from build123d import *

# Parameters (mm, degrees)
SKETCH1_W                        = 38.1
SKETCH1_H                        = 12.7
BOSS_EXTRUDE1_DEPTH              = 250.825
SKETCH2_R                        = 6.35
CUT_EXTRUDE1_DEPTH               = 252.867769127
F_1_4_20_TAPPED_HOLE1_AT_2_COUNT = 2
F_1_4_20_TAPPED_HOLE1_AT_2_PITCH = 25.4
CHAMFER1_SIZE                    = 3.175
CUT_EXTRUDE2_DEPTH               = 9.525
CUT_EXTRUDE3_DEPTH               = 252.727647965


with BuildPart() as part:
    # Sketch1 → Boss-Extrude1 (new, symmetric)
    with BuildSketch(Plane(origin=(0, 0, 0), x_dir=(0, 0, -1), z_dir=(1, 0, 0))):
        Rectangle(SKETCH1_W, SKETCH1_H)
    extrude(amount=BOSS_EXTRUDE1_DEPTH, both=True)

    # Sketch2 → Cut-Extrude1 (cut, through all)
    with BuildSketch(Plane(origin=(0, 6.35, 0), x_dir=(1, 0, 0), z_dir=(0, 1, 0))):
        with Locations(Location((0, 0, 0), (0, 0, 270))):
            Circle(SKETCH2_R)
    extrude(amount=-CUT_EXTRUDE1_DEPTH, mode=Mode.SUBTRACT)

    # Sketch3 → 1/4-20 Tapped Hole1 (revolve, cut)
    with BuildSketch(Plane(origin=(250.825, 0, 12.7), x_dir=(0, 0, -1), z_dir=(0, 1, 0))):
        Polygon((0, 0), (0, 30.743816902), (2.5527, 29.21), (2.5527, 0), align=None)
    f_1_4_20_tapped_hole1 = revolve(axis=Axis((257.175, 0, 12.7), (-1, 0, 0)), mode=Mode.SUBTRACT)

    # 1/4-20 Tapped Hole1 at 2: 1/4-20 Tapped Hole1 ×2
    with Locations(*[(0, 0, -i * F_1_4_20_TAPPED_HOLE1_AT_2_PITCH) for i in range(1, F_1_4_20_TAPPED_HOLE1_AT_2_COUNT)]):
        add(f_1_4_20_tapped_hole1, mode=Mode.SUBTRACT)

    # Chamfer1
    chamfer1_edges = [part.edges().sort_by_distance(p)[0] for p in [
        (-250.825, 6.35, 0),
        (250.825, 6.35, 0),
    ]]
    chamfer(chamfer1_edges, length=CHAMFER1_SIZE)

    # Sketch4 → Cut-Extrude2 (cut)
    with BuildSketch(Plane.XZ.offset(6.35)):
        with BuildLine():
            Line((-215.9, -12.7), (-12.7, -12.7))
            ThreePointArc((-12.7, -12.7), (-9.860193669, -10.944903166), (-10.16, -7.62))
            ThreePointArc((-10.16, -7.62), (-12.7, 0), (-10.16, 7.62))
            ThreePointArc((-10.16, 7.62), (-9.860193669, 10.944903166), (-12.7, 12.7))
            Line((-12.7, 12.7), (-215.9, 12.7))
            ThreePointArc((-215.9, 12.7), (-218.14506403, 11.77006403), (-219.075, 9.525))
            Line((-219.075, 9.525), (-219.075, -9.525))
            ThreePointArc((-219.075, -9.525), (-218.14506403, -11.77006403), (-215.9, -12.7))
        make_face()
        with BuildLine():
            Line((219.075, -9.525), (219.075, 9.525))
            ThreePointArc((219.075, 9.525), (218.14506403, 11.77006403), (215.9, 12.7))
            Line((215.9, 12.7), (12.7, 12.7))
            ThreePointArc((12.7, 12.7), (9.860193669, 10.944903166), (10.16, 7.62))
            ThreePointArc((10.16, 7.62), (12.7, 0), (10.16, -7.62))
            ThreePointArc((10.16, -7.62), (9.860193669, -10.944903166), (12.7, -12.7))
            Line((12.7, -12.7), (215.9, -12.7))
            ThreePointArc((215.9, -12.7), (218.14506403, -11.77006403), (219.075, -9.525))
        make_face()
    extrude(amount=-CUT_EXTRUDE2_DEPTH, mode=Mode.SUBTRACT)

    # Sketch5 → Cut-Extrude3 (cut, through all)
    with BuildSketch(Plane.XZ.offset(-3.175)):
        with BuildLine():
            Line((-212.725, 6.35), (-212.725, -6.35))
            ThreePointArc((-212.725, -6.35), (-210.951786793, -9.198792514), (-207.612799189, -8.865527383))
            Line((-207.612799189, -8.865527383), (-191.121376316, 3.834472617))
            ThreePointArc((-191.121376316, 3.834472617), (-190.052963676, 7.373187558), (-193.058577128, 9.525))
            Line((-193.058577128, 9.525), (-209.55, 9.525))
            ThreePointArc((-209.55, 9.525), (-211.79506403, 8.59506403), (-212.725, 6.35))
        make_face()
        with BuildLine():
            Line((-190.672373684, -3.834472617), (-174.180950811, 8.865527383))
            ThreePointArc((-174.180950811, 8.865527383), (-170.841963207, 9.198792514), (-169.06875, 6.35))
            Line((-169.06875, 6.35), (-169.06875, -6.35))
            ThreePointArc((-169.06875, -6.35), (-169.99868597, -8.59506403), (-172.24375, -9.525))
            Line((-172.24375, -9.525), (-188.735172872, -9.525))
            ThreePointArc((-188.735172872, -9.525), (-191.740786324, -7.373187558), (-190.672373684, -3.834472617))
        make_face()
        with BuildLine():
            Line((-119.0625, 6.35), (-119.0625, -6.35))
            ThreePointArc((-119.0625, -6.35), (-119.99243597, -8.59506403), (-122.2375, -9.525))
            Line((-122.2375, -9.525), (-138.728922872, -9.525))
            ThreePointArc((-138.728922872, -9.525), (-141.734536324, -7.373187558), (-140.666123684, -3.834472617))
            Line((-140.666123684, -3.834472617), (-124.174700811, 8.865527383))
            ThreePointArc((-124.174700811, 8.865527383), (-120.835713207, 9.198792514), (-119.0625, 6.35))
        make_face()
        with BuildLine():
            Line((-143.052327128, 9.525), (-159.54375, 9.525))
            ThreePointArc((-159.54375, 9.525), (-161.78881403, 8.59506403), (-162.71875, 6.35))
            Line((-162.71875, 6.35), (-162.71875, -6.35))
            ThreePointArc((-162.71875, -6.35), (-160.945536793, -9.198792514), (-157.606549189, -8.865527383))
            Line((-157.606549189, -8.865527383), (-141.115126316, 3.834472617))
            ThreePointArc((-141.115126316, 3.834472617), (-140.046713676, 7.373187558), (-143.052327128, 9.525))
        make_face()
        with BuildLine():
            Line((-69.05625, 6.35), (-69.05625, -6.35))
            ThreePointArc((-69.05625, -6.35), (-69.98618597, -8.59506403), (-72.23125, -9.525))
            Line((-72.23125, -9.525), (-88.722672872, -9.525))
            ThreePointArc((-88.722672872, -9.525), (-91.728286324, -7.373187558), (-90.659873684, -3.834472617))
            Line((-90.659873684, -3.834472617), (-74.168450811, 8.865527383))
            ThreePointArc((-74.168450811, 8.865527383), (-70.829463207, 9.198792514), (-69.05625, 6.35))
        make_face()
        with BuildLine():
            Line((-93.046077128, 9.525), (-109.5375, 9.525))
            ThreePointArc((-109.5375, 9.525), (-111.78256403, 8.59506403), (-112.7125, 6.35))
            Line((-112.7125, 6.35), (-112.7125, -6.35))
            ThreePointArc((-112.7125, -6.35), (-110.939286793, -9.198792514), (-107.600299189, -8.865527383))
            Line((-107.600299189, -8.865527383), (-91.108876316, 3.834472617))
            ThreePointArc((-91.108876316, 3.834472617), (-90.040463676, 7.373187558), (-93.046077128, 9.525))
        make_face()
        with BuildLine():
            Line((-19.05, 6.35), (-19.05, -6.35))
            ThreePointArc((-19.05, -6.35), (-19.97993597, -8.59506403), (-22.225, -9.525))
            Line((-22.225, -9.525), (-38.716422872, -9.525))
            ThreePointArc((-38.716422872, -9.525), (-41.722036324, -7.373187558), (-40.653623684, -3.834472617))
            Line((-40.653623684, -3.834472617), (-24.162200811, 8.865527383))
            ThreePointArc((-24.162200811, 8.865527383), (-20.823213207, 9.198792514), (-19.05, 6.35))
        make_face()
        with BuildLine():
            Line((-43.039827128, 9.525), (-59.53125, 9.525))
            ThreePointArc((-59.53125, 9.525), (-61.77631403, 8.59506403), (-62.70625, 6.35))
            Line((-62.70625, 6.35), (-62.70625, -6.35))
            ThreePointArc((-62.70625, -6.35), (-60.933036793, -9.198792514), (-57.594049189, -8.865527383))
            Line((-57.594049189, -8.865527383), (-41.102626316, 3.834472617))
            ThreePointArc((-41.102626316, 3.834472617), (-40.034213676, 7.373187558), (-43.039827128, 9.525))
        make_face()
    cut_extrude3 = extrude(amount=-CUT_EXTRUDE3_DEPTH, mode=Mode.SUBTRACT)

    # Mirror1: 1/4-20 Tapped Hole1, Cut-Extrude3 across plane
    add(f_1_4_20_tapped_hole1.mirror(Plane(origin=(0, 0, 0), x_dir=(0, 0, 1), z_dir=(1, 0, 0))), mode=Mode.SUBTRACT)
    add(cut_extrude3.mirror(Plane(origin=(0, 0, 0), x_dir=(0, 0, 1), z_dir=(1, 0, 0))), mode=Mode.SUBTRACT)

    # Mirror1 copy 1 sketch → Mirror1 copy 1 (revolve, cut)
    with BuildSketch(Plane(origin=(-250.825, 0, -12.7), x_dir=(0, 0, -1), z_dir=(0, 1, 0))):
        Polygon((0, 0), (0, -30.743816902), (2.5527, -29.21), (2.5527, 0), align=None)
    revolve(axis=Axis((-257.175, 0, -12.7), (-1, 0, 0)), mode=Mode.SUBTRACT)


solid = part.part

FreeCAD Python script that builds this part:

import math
import FreeCAD as App
import Part
import Sketcher
Q = App.Units.Quantity


def edges_at(feature, points):
    """Names of the edges that pass closest to the given points."""
    edges = feature.Shape.Edges
    near = lambda p: min(range(len(edges)), key=lambda i: edges[i].distToShape(Part.Vertex(*p))[0])
    return sorted({f"Edge{near(p) + 1}" for p in points})

doc = App.newDocument("Part")
body = doc.addObject("PartDesign::Body", "Body")

# Sketch on YZ plane
sketch1 = doc.addObject("Sketcher::SketchObject", "Sketch")
body.addObject(sketch1)
sketch1.AttachmentSupport = (doc.YZ_Plane, [""])
sketch1.MapMode = "FlatFace"
sketch1.addGeometry([
    Part.LineSegment(App.Vector(6.35, 19.05, 0), App.Vector(-6.35, 19.05, 0)),
    Part.LineSegment(App.Vector(-6.35, 19.05, 0), App.Vector(-6.35, -19.05, 0)),
    Part.LineSegment(App.Vector(-6.35, -19.05, 0), App.Vector(6.35, -19.05, 0)),
    Part.LineSegment(App.Vector(6.35, -19.05, 0), App.Vector(6.35, 19.05, 0)),
], False)
sketch1.addConstraint([
    Sketcher.Constraint("Coincident", 0, 2, 1, 1),
    Sketcher.Constraint("Coincident", 1, 2, 2, 1),
    Sketcher.Constraint("Coincident", 2, 2, 3, 1),
    Sketcher.Constraint("Coincident", 3, 2, 0, 1),
    Sketcher.Constraint("Horizontal", 0),
    Sketcher.Constraint("Vertical", 1),
    Sketcher.Constraint("Horizontal", 2),
    Sketcher.Constraint("Vertical", 3),
    Sketcher.Constraint("Symmetric", 0, 2, 2, 2, -1, 1),
    Sketcher.Constraint("DistanceX", 0, 2, 0, 1, Q("0.5 in")),
    Sketcher.Constraint("DistanceY", 1, 2, 1, 1, Q("1.5 in")),
])
pad1 = doc.addObject("PartDesign::Pad", "Pad")
body.addObject(pad1)
pad1.Profile = sketch1
pad1.Length = Q("19.75 in")
pad1.Midplane = True

# Sketch on XZ plane
sketch2 = doc.addObject("Sketcher::SketchObject", "Sketch001")
body.addObject(sketch2)
sketch2.AttachmentSupport = (doc.XZ_Plane, [""])
sketch2.MapMode = "FlatFace"
sketch2.AttachmentOffset = App.Placement(App.Vector(0, 0, -0.25 * 25.4), App.Rotation())
sketch2.addGeometry(Part.Circle(App.Vector(0, 0, 0), App.Vector(0, 0, 1), 6.35), False)
sketch2.addConstraint([
    Sketcher.Constraint("Coincident", 0, 3, -1, 1),
    Sketcher.Constraint("Diameter", 0, Q("0.5 in")),
])
pocket1 = doc.addObject("PartDesign::Pocket", "Pocket")
body.addObject(pocket1)
pocket1.Profile = sketch2
pocket1.Type = "ThroughAll"
pocket1.Reversed = True

# Sketch on XZ plane
sketch3 = doc.addObject("Sketcher::SketchObject", "Sketch002")
body.addObject(sketch3)
sketch3.AttachmentSupport = (doc.XZ_Plane, [""])
sketch3.MapMode = "FlatFace"
sketch3.addGeometry([
    Part.LineSegment(App.Vector(220.081183, 12.7, 0), App.Vector(250.825, 12.7, 0)),
    Part.LineSegment(App.Vector(250.825, 12.7, 0), App.Vector(250.825, 10.1473, 0)),
    Part.LineSegment(App.Vector(250.825, 10.1473, 0), App.Vector(221.615, 10.1473, 0)),
    Part.LineSegment(App.Vector(221.615, 10.1473, 0), App.Vector(220.081183, 12.7, 0)),
], False)
sketch3.addGeometry(Part.LineSegment(App.Vector(250.825, 12.7, 0), App.Vector(220.081183, 12.7, 0)), True)  # axis
sketch3.addConstraint([
    Sketcher.Constraint("Coincident", 0, 2, 1, 1),
    Sketcher.Constraint("Coincident", 1, 2, 2, 1),
    Sketcher.Constraint("Coincident", 2, 2, 3, 1),
    Sketcher.Constraint("Coincident", 3, 2, 0, 1),
    Sketcher.Constraint("Horizontal", 0),
    Sketcher.Constraint("Vertical", 1),
    Sketcher.Constraint("Horizontal", 2),
    Sketcher.Constraint("Horizontal", 4),
    Sketcher.Constraint("Coincident", 4, 1, 0, 2),
    Sketcher.Constraint("Equal", 0, 4),
    Sketcher.Constraint("Angle", 3, Q("121 deg")),
    Sketcher.Constraint("DistanceX", 2, 2, 2, 1, Q("1.15 in")),
    Sketcher.Constraint("DistanceY", -1, 1, 0, 2, Q("0.5 in")),
    Sketcher.Constraint("DistanceY", 1, 2, 1, 1, Q("0.1005 in")),
    Sketcher.Constraint("DistanceX", -1, 1, 0, 2, Q("9.875 in")),
])
groove = doc.addObject("PartDesign::Groove", "Groove")
body.addObject(groove)
groove.Profile = sketch3
groove.ReferenceAxis = (sketch3, ["Axis0"])
groove.Angle = 360
doc.recompute()

linearpattern = doc.addObject("PartDesign::LinearPattern", "LinearPattern")
body.addObject(linearpattern)
linearpattern.Originals = [groove]
linearpattern.Direction = (doc.Z_Axis, [""])
linearpattern.Mode = "offset"
linearpattern.Offset = Q("1 in")
linearpattern.Occurrences = 2
linearpattern.Reversed = True
body.Tip = linearpattern
doc.recompute()

chamfer = doc.addObject("PartDesign::Chamfer", "Chamfer")
body.addObject(chamfer)
chamfer.Base = (linearpattern, edges_at(linearpattern, [(-250.825, 6.35, 0), (250.825, 6.35, 0)]))
chamfer.Size = Q("0.125 in")

# Sketch on XZ plane
sketch4 = doc.addObject("Sketcher::SketchObject", "Sketch003")
body.addObject(sketch4)
sketch4.AttachmentSupport = (doc.XZ_Plane, [""])
sketch4.MapMode = "FlatFace"
sketch4.AttachmentOffset = App.Placement(App.Vector(0, 0, 0.25 * 25.4), App.Rotation())
sketch4.addGeometry([
    Part.LineSegment(App.Vector(-215.9, -12.7, 0), App.Vector(-12.7, -12.7, 0)),  # 0
    Part.ArcOfCircle(Part.Circle(App.Vector(-12.7, -9.525, 0), App.Vector(0, 0, 1), 3.175), math.radians(-90), math.radians(36.869898)),  # 1
    Part.ArcOfCircle(Part.Circle(App.Vector(0, 0, 0), App.Vector(0, 0, 1), 12.7), math.radians(143.130102), math.radians(216.869898)),  # 2
    Part.ArcOfCircle(Part.Circle(App.Vector(-12.7, 9.525, 0), App.Vector(0, 0, 1), 3.175), math.radians(-36.869898), math.radians(90)),  # 3
    Part.LineSegment(App.Vector(-12.7, 12.7, 0), App.Vector(-215.9, 12.7, 0)),  # 4
    Part.ArcOfCircle(Part.Circle(App.Vector(-215.9, 9.525, 0), App.Vector(0, 0, 1), 3.175), math.radians(90), math.radians(180)),  # 5
    Part.LineSegment(App.Vector(-219.075, 9.525, 0), App.Vector(-219.075, -9.525, 0)),  # 6
    Part.ArcOfCircle(Part.Circle(App.Vector(-215.9, -9.525, 0), App.Vector(0, 0, 1), 3.175), math.radians(-180), math.radians(-90)),  # 7
    Part.LineSegment(App.Vector(219.075, -9.525, 0), App.Vector(219.075, 9.525, 0)),  # 8
    Part.ArcOfCircle(Part.Circle(App.Vector(215.9, 9.525, 0), App.Vector(0, 0, 1), 3.175), math.radians(0), math.radians(90)),  # 9
    Part.LineSegment(App.Vector(215.9, 12.7, 0), App.Vector(12.7, 12.7, 0)),  # 10
    Part.ArcOfCircle(Part.Circle(App.Vector(12.7, 9.525, 0), App.Vector(0, 0, 1), 3.175), math.radians(90), math.radians(216.869898)),  # 11
    Part.ArcOfCircle(Part.Circle(App.Vector(0, 0, 0), App.Vector(0, 0, 1), 12.7), math.radians(-36.869898), math.radians(36.869898)),  # 12
    Part.ArcOfCircle(Part.Circle(App.Vector(12.7, -9.525, 0), App.Vector(0, 0, 1), 3.175), math.radians(143.130102), math.radians(270)),  # 13
    Part.LineSegment(App.Vector(12.7, -12.7, 0), App.Vector(215.9, -12.7, 0)),  # 14
    Part.ArcOfCircle(Part.Circle(App.Vector(215.9, -9.525, 0), App.Vector(0, 0, 1), 3.175), math.radians(-90), math.radians(0)),  # 15
], False)
sketch4.addConstraint([
    Sketcher.Constraint("Tangent", 0, 2, 1, 1),
    Sketcher.Constraint("Tangent", 1, 2, 2, 2),
    Sketcher.Constraint("Tangent", 2, 1, 3, 1),
    Sketcher.Constraint("Tangent", 3, 2, 4, 1),
    Sketcher.Constraint("Tangent", 4, 2, 5, 1),
    Sketcher.Constraint("Tangent", 5, 2, 6, 1),
    Sketcher.Constraint("Tangent", 6, 2, 7, 1),
    Sketcher.Constraint("Tangent", 7, 2, 0, 1),
    Sketcher.Constraint("Tangent", 8, 2, 9, 1),
    Sketcher.Constraint("Tangent", 9, 2, 10, 1),
    Sketcher.Constraint("Tangent", 10, 2, 11, 1),
    Sketcher.Constraint("Tangent", 11, 2, 12, 2),
    Sketcher.Constraint("Tangent", 12, 1, 13, 1),
    Sketcher.Constraint("Tangent", 13, 2, 14, 1),
    Sketcher.Constraint("Tangent", 14, 2, 15, 1),
    Sketcher.Constraint("Tangent", 15, 2, 8, 1),
    Sketcher.Constraint("Horizontal", 0),
    Sketcher.Constraint("Horizontal", 4),
    Sketcher.Constraint("Vertical", 6),
    Sketcher.Constraint("Vertical", 8),
    Sketcher.Constraint("Horizontal", 10),
    Sketcher.Constraint("Horizontal", 14),
    Sketcher.Constraint("Coincident", 2, 3, -1, 1),
    Sketcher.Constraint("Coincident", 12, 3, -1, 1),
    Sketcher.Constraint("Equal", 1, 3),
    Sketcher.Constraint("Equal", 3, 5),
    Sketcher.Constraint("Equal", 5, 7),
    Sketcher.Constraint("Equal", 7, 9),
    Sketcher.Constraint("Equal", 9, 11),
    Sketcher.Constraint("Equal", 2, 12),
    Sketcher.Constraint("Equal", 11, 13),
    Sketcher.Constraint("Equal", 13, 15),
    Sketcher.Constraint("Symmetric", 7, 3, 9, 3, -1, 1),
    Sketcher.Constraint("Horizontal", 5, 3, 9, 3),
    Sketcher.Constraint("Horizontal", 7, 3, 13, 3),
    Sketcher.Constraint("Radius", 2, Q("0.5 in")),
    Sketcher.Constraint("DistanceX", 0, 1, 0, 2, Q("8 in")),
    Sketcher.Constraint("Radius", 1, Q("0.125 in")),
    Sketcher.Constraint("DistanceX", 3, 3, 9, 3, Q("9 in")),
])
pocket2 = doc.addObject("PartDesign::Pocket", "Pocket001")
body.addObject(pocket2)
pocket2.Profile = sketch4
pocket2.Length = Q("0.375 in")

# Sketch on XZ plane
sketch5 = doc.addObject("Sketcher::SketchObject", "Sketch004")
body.addObject(sketch5)
sketch5.AttachmentSupport = (doc.XZ_Plane, [""])
sketch5.MapMode = "FlatFace"
sketch5.AttachmentOffset = App.Placement(App.Vector(0, 0, -0.125 * 25.4), App.Rotation())
sketch5.addGeometry([
    Part.LineSegment(App.Vector(-212.725, 6.35, 0), App.Vector(-212.725, -6.35, 0)),  # 0
    Part.ArcOfCircle(Part.Circle(App.Vector(-209.55, -6.35, 0), App.Vector(0, 0, 1), 3.175), math.radians(180), math.radians(307.59977)),  # 1
    Part.LineSegment(App.Vector(-207.612799, -8.865527, 0), App.Vector(-191.121376, 3.834473, 0)),  # 2
    Part.ArcOfCircle(Part.Circle(App.Vector(-193.058577, 6.35, 0), App.Vector(0, 0, 1), 3.175), math.radians(-52.40023), math.radians(90)),  # 3
    Part.LineSegment(App.Vector(-193.058577, 9.525, 0), App.Vector(-209.55, 9.525, 0)),  # 4
    Part.ArcOfCircle(Part.Circle(App.Vector(-209.55, 6.35, 0), App.Vector(0, 0, 1), 3.175), math.radians(90), math.radians(180)),  # 5
    Part.LineSegment(App.Vector(-174.180951, 8.865527, 0), App.Vector(-190.672374, -3.834473, 0)),  # 6
    Part.ArcOfCircle(Part.Circle(App.Vector(-188.735173, -6.35, 0), App.Vector(0, 0, 1), 3.175), math.radians(127.59977), math.radians(270)),  # 7
    Part.LineSegment(App.Vector(-188.735173, -9.525, 0), App.Vector(-172.24375, -9.525, 0)),  # 8
    Part.ArcOfCircle(Part.Circle(App.Vector(-172.24375, -6.35, 0), App.Vector(0, 0, 1), 3.175), math.radians(-90), math.radians(0)),  # 9
    Part.LineSegment(App.Vector(-169.06875, -6.35, 0), App.Vector(-169.06875, 6.35, 0)),  # 10
    Part.ArcOfCircle(Part.Circle(App.Vector(-172.24375, 6.35, 0), App.Vector(0, 0, 1), 3.175), math.radians(0), math.radians(127.59977)),  # 11
    Part.LineSegment(App.Vector(-119.0625, -6.35, 0), App.Vector(-119.0625, 6.35, 0)),  # 12
    Part.ArcOfCircle(Part.Circle(App.Vector(-122.2375, 6.35, 0), App.Vector(0, 0, 1), 3.175), math.radians(0), math.radians(127.59977)),  # 13
    Part.LineSegment(App.Vector(-124.174701, 8.865527, 0), App.Vector(-140.666124, -3.834473, 0)),  # 14
    Part.ArcOfCircle(Part.Circle(App.Vector(-138.728923, -6.35, 0), App.Vector(0, 0, 1), 3.175), math.radians(127.59977), math.radians(270)),  # 15
    Part.LineSegment(App.Vector(-138.728923, -9.525, 0), App.Vector(-122.2375, -9.525, 0)),  # 16
    Part.ArcOfCircle(Part.Circle(App.Vector(-122.2375, -6.35, 0), App.Vector(0, 0, 1), 3.175), math.radians(-90), math.radians(0)),  # 17
    Part.LineSegment(App.Vector(-143.052327, 9.525, 0), App.Vector(-159.54375, 9.525, 0)),  # 18
    Part.ArcOfCircle(Part.Circle(App.Vector(-159.54375, 6.35, 0), App.Vector(0, 0, 1), 3.175), math.radians(90), math.radians(180)),  # 19
    Part.LineSegment(App.Vector(-162.71875, 6.35, 0), App.Vector(-162.71875, -6.35, 0)),  # 20
    Part.ArcOfCircle(Part.Circle(App.Vector(-159.54375, -6.35, 0), App.Vector(0, 0, 1), 3.175), math.radians(180), math.radians(307.59977)),  # 21
    Part.LineSegment(App.Vector(-157.606549, -8.865527, 0), App.Vector(-141.115126, 3.834473, 0)),  # 22
    Part.ArcOfCircle(Part.Circle(App.Vector(-143.052327, 6.35, 0), App.Vector(0, 0, 1), 3.175), math.radians(-52.40023), math.radians(90)),  # 23
    Part.LineSegment(App.Vector(-69.05625, -6.35, 0), App.Vector(-69.05625, 6.35, 0)),  # 24
    Part.ArcOfCircle(Part.Circle(App.Vector(-72.23125, 6.35, 0), App.Vector(0, 0, 1), 3.175), math.radians(0), math.radians(127.59977)),  # 25
    Part.LineSegment(App.Vector(-74.168451, 8.865527, 0), App.Vector(-90.659874, -3.834473, 0)),  # 26
    Part.ArcOfCircle(Part.Circle(App.Vector(-88.722673, -6.35, 0), App.Vector(0, 0, 1), 3.175), math.radians(127.59977), math.radians(270)),  # 27
    Part.LineSegment(App.Vector(-88.722673, -9.525, 0), App.Vector(-72.23125, -9.525, 0)),  # 28
    Part.ArcOfCircle(Part.Circle(App.Vector(-72.23125, -6.35, 0), App.Vector(0, 0, 1), 3.175), math.radians(-90), math.radians(0)),  # 29
    Part.LineSegment(App.Vector(-93.046077, 9.525, 0), App.Vector(-109.5375, 9.525, 0)),  # 30
    Part.ArcOfCircle(Part.Circle(App.Vector(-109.5375, 6.35, 0), App.Vector(0, 0, 1), 3.175), math.radians(90), math.radians(180)),  # 31
    Part.LineSegment(App.Vector(-112.7125, 6.35, 0), App.Vector(-112.7125, -6.35, 0)),  # 32
    Part.ArcOfCircle(Part.Circle(App.Vector(-109.5375, -6.35, 0), App.Vector(0, 0, 1), 3.175), math.radians(180), math.radians(307.59977)),  # 33
    Part.LineSegment(App.Vector(-107.600299, -8.865527, 0), App.Vector(-91.108876, 3.834473, 0)),  # 34
    Part.ArcOfCircle(Part.Circle(App.Vector(-93.046077, 6.35, 0), App.Vector(0, 0, 1), 3.175), math.radians(-52.40023), math.radians(90)),  # 35
    Part.LineSegment(App.Vector(-19.05, -6.35, 0), App.Vector(-19.05, 6.35, 0)),  # 36
    Part.ArcOfCircle(Part.Circle(App.Vector(-22.225, 6.35, 0), App.Vector(0, 0, 1), 3.175), math.radians(0), math.radians(127.59977)),  # 37
    Part.LineSegment(App.Vector(-24.162201, 8.865527, 0), App.Vector(-40.653624, -3.834473, 0)),  # 38
    Part.ArcOfCircle(Part.Circle(App.Vector(-38.716423, -6.35, 0), App.Vector(0, 0, 1), 3.175), math.radians(127.59977), math.radians(270)),  # 39
    Part.LineSegment(App.Vector(-38.716423, -9.525, 0), App.Vector(-22.225, -9.525, 0)),  # 40
    Part.ArcOfCircle(Part.Circle(App.Vector(-22.225, -6.35, 0), App.Vector(0, 0, 1), 3.175), math.radians(-90), math.radians(0)),  # 41
    Part.LineSegment(App.Vector(-43.039827, 9.525, 0), App.Vector(-59.53125, 9.525, 0)),  # 42
    Part.ArcOfCircle(Part.Circle(App.Vector(-59.53125, 6.35, 0), App.Vector(0, 0, 1), 3.175), math.radians(90), math.radians(180)),  # 43
    Part.LineSegment(App.Vector(-62.70625, 6.35, 0), App.Vector(-62.70625, -6.35, 0)),  # 44
    Part.ArcOfCircle(Part.Circle(App.Vector(-59.53125, -6.35, 0), App.Vector(0, 0, 1), 3.175), math.radians(180), math.radians(307.59977)),  # 45
    Part.LineSegment(App.Vector(-57.594049, -8.865527, 0), App.Vector(-41.102626, 3.834473, 0)),  # 46
    Part.ArcOfCircle(Part.Circle(App.Vector(-43.039827, 6.35, 0), App.Vector(0, 0, 1), 3.175), math.radians(-52.40023), math.radians(90)),  # 47
], False)
sketch5.addConstraint([
    Sketcher.Constraint("Tangent", 0, 2, 1, 1),
    Sketcher.Constraint("Tangent", 1, 2, 2, 1),
    Sketcher.Constraint("Tangent", 2, 2, 3, 1),
    Sketcher.Constraint("Tangent", 3, 2, 4, 1),
    Sketcher.Constraint("Tangent", 4, 2, 5, 1),
    Sketcher.Constraint("Tangent", 5, 2, 0, 1),
    Sketcher.Constraint("Tangent", 6, 2, 7, 1),
    Sketcher.Constraint("Tangent", 7, 2, 8, 1),
    Sketcher.Constraint("Tangent", 8, 2, 9, 1),
    Sketcher.Constraint("Tangent", 9, 2, 10, 1),
    Sketcher.Constraint("Tangent", 10, 2, 11, 1),
    Sketcher.Constraint("Tangent", 11, 2, 6, 1),
    Sketcher.Constraint("Tangent", 12, 2, 13, 1),
    Sketcher.Constraint("Tangent", 13, 2, 14, 1),
    Sketcher.Constraint("Tangent", 14, 2, 15, 1),
    Sketcher.Constraint("Tangent", 15, 2, 16, 1),
    Sketcher.Constraint("Tangent", 16, 2, 17, 1),
    Sketcher.Constraint("Tangent", 17, 2, 12, 1),
    Sketcher.Constraint("Tangent", 18, 2, 19, 1),
    Sketcher.Constraint("Tangent", 19, 2, 20, 1),
    Sketcher.Constraint("Tangent", 20, 2, 21, 1),
    Sketcher.Constraint("Tangent", 21, 2, 22, 1),
    Sketcher.Constraint("Tangent", 22, 2, 23, 1),
    Sketcher.Constraint("Tangent", 23, 2, 18, 1),
    Sketcher.Constraint("Tangent", 24, 2, 25, 1),
    Sketcher.Constraint("Tangent", 25, 2, 26, 1),
    Sketcher.Constraint("Tangent", 26, 2, 27, 1),
    Sketcher.Constraint("Tangent", 27, 2, 28, 1),
    Sketcher.Constraint("Tangent", 28, 2, 29, 1),
    Sketcher.Constraint("Tangent", 29, 2, 24, 1),
    Sketcher.Constraint("Tangent", 30, 2, 31, 1),
    Sketcher.Constraint("Tangent", 31, 2, 32, 1),
    Sketcher.Constraint("Tangent", 32, 2, 33, 1),
    Sketcher.Constraint("Tangent", 33, 2, 34, 1),
    Sketcher.Constraint("Tangent", 34, 2, 35, 1),
    Sketcher.Constraint("Tangent", 35, 2, 30, 1),
    Sketcher.Constraint("Tangent", 36, 2, 37, 1),
    Sketcher.Constraint("Tangent", 37, 2, 38, 1),
    Sketcher.Constraint("Tangent", 38, 2, 39, 1),
    Sketcher.Constraint("Tangent", 39, 2, 40, 1),
    Sketcher.Constraint("Tangent", 40, 2, 41, 1),
    Sketcher.Constraint("Tangent", 41, 2, 36, 1),
    Sketcher.Constraint("Tangent", 42, 2, 43, 1),
    Sketcher.Constraint("Tangent", 43, 2, 44, 1),
    Sketcher.Constraint("Tangent", 44, 2, 45, 1),
    Sketcher.Constraint("Tangent", 45, 2, 46, 1),
    Sketcher.Constraint("Tangent", 46, 2, 47, 1),
    Sketcher.Constraint("Tangent", 47, 2, 42, 1),
    Sketcher.Constraint("Vertical", 0),
    Sketcher.Constraint("Horizontal", 4),
    Sketcher.Constraint("Horizontal", 8),
    Sketcher.Constraint("Vertical", 10),
    Sketcher.Constraint("Vertical", 12),
    Sketcher.Constraint("Horizontal", 16),
    Sketcher.Constraint("Horizontal", 18),
    Sketcher.Constraint("Vertical", 20),
    Sketcher.Constraint("Vertical", 24),
    Sketcher.Constraint("Horizontal", 28),
    Sketcher.Constraint("Horizontal", 30),
    Sketcher.Constraint("Vertical", 32),
    Sketcher.Constraint("Vertical", 36),
    Sketcher.Constraint("Horizontal", 40),
    Sketcher.Constraint("Horizontal", 42),
    Sketcher.Constraint("Vertical", 44),
    Sketcher.Constraint("Equal", 1, 3),
    Sketcher.Constraint("Equal", 3, 5),
    Sketcher.Constraint("Equal", 5, 7),
    Sketcher.Constraint("Equal", 7, 9),
    Sketcher.Constraint("Equal", 9, 11),
    Sketcher.Constraint("Equal", 11, 13),
    Sketcher.Constraint("Equal", 13, 15),
    Sketcher.Constraint("Equal", 15, 17),
    Sketcher.Constraint("Equal", 17, 19),
    Sketcher.Constraint("Equal", 19, 21),
    Sketcher.Constraint("Equal", 21, 23),
    Sketcher.Constraint("Equal", 23, 25),
    Sketcher.Constraint("Equal", 25, 27),
    Sketcher.Constraint("Equal", 27, 29),
    Sketcher.Constraint("Equal", 29, 31),
    Sketcher.Constraint("Equal", 31, 33),
    Sketcher.Constraint("Equal", 33, 35),
    Sketcher.Constraint("Equal", 35, 37),
    Sketcher.Constraint("Equal", 37, 39),
    Sketcher.Constraint("Equal", 39, 41),
    Sketcher.Constraint("Equal", 41, 43),
    Sketcher.Constraint("Equal", 43, 45),
    Sketcher.Constraint("Equal", 45, 47),
    Sketcher.Constraint("Parallel", 2, 6),
    Sketcher.Constraint("Parallel", 6, 14),
    Sketcher.Constraint("Parallel", 14, 22),
    Sketcher.Constraint("Parallel", 22, 26),
    Sketcher.Constraint("Parallel", 26, 34),
    Sketcher.Constraint("Parallel", 34, 38),
    Sketcher.Constraint("Parallel", 38, 46),
    Sketcher.Constraint("Horizontal", 1, 3, 7, 3),
    Sketcher.Constraint("Horizontal", 5, 3, 11, 3),
    Sketcher.Constraint("Horizontal", 11, 3, 13, 3),
    Sketcher.Constraint("Horizontal", 9, 3, 15, 3),
    Sketcher.Constraint("Horizontal", 13, 3, 19, 3),
    Sketcher.Constraint("Horizontal", 17, 3, 21, 3),
    Sketcher.Constraint("Horizontal", 23, 3, 25, 3),
    Sketcher.Constraint("Horizontal", 21, 3, 27, 3),
    Sketcher.Constraint("Horizontal", 25, 3, 31, 3),
    Sketcher.Constraint("Horizontal", 29, 3, 33, 3),
    Sketcher.Constraint("Horizontal", 35, 3, 37, 3),
    Sketcher.Constraint("Horizontal", 33, 3, 39, 3),
    Sketcher.Constraint("Horizontal", 37, 3, 43, 3),
    Sketcher.Constraint("Horizontal", 41, 3, 45, 3),
    Sketcher.Constraint("DistanceY", 0, 2, 0, 1, Q("0.5 in")),
    Sketcher.Constraint("Radius", 1, Q("0.125 in")),
    Sketcher.Constraint("DistanceX", 1, 3, -1, 1, Q("8.25 in")),
    Sketcher.Constraint("DistanceY", 1, 3, -1, 1, Q("0.25 in")),
    Sketcher.Constraint("DistanceX", 36, 2, -1, 1, Q("0.75 in")),
    Sketcher.Constraint("DistanceX", 9, 3, -1, 1, Q("6.78125 in")),
    Sketcher.Constraint("DistanceX", 13, 3, -1, 1, Q("4.8125 in")),
    Sketcher.Constraint("DistanceX", 19, 3, -1, 1, Q("6.28125 in")),
    Sketcher.Constraint("DistanceX", 25, 3, -1, 1, Q("2.84375 in")),
    Sketcher.Constraint("DistanceX", 31, 3, -1, 1, Q("4.3125 in")),
    Sketcher.Constraint("DistanceX", 43, 3, -1, 1, Q("2.34375 in")),
    Sketcher.Constraint("DistanceX", 1, 2, -1, 1, Q("207.612799 mm")),
])
pocket3 = doc.addObject("PartDesign::Pocket", "Pocket002")
body.addObject(pocket3)
pocket3.Profile = sketch5
pocket3.Type = "ThroughAll"
doc.recompute()

mirrored = doc.addObject("PartDesign::Mirrored", "Mirrored")
body.addObject(mirrored)
mirrored.Originals = [groove, pocket3]
mirrored.MirrorPlane = (doc.YZ_Plane, [""])
body.Tip = mirrored

# Sketch on XZ plane
sketch6 = doc.addObject("Sketcher::SketchObject", "Sketch005")
body.addObject(sketch6)
sketch6.AttachmentSupport = (doc.XZ_Plane, [""])
sketch6.MapMode = "FlatFace"
sketch6.addGeometry([
    Part.LineSegment(App.Vector(-250.825, -12.7, 0), App.Vector(-220.081183, -12.7, 0)),
    Part.LineSegment(App.Vector(-220.081183, -12.7, 0), App.Vector(-221.615, -15.2527, 0)),
    Part.LineSegment(App.Vector(-221.615, -15.2527, 0), App.Vector(-250.825, -15.2527, 0)),
    Part.LineSegment(App.Vector(-250.825, -15.2527, 0), App.Vector(-250.825, -12.7, 0)),
], False)
sketch6.addGeometry(Part.LineSegment(App.Vector(-220.081183, -12.7, 0), App.Vector(-250.825, -12.7, 0)), True)  # axis
sketch6.addConstraint([
    Sketcher.Constraint("Coincident", 0, 2, 1, 1),
    Sketcher.Constraint("Coincident", 1, 2, 2, 1),
    Sketcher.Constraint("Coincident", 2, 2, 3, 1),
    Sketcher.Constraint("Coincident", 3, 2, 0, 1),
    Sketcher.Constraint("Horizontal", 0),
    Sketcher.Constraint("Horizontal", 2),
    Sketcher.Constraint("Vertical", 3),
    Sketcher.Constraint("Horizontal", 4),
    Sketcher.Constraint("Coincident", 4, 1, 0, 2),
    Sketcher.Constraint("Vertical", 2, 2, 4, 2),
    Sketcher.Constraint("Angle", 1, Q("-121 deg")),
    Sketcher.Constraint("DistanceX", 2, 2, 2, 1, Q("1.15 in")),
    Sketcher.Constraint("DistanceY", 0, 2, -1, 1, Q("0.5 in")),
    Sketcher.Constraint("DistanceY", 3, 1, 3, 2, Q("0.1005 in")),
    Sketcher.Constraint("DistanceX", 1, 2, -1, 1, Q("8.725 in")),
])
groove2 = doc.addObject("PartDesign::Groove", "Groove001")
body.addObject(groove2)
groove2.Profile = sketch6
groove2.ReferenceAxis = (sketch6, ["Axis0"])
groove2.Angle = 360

doc.recompute()
